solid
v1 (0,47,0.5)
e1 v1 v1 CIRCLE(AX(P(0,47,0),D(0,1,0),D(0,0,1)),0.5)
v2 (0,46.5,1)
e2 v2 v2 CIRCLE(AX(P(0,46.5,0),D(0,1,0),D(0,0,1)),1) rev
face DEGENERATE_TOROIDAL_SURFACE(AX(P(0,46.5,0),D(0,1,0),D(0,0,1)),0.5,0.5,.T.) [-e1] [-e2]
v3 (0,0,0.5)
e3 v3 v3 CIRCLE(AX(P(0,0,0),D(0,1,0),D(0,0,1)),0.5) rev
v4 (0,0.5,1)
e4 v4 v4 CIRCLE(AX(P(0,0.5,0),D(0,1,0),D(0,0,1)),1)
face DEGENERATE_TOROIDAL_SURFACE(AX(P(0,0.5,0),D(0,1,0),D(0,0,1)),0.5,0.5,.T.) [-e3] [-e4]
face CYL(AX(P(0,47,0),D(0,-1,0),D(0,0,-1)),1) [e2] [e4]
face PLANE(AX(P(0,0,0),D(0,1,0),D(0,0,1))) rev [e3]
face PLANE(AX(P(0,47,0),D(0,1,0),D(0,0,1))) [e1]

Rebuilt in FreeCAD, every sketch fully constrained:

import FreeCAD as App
import Part
import Sketcher
from FreeCAD import Vector


def edges_at(feature, points):
    """Names of the edges that pass closest to the given points."""
    edges = feature.Shape.Edges
    near = lambda p: min(range(len(edges)), key=lambda i: edges[i].distToShape(Part.Vertex(*p))[0])
    return sorted({f"Edge{near(p) + 1}" for p in points})

doc = App.newDocument("Part")
body = doc.addObject("PartDesign::Body", "Body")

sketch1 = body.newObject("Sketcher::SketchObject", "Sketch")
sketch1.AttachmentSupport = (doc.getObject("XZ_Plane"), [""])
sketch1.MapMode = "FlatFace"
sketch1.addGeometry(Part.Circle(Vector(0, 0, 0), Vector(0, 0, 1), 1), False)
sketch1.addConstraint(Sketcher.Constraint("Coincident", 0, 3, -1, 1))
sketch1.addConstraint(Sketcher.Constraint("Diameter", 0, 2.0))
pad1 = body.newObject("PartDesign::Pad", "Pad")
pad1.Profile = sketch1
pad1.Length = 47
pad1.Reversed = True
doc.recompute()

fillet = body.newObject("PartDesign::Fillet", "Fillet")
fillet.Base = (pad1, edges_at(pad1, [(0, 0, -1), (0, 47, -1)]))
fillet.Radius = 0.5

doc.recompute()
